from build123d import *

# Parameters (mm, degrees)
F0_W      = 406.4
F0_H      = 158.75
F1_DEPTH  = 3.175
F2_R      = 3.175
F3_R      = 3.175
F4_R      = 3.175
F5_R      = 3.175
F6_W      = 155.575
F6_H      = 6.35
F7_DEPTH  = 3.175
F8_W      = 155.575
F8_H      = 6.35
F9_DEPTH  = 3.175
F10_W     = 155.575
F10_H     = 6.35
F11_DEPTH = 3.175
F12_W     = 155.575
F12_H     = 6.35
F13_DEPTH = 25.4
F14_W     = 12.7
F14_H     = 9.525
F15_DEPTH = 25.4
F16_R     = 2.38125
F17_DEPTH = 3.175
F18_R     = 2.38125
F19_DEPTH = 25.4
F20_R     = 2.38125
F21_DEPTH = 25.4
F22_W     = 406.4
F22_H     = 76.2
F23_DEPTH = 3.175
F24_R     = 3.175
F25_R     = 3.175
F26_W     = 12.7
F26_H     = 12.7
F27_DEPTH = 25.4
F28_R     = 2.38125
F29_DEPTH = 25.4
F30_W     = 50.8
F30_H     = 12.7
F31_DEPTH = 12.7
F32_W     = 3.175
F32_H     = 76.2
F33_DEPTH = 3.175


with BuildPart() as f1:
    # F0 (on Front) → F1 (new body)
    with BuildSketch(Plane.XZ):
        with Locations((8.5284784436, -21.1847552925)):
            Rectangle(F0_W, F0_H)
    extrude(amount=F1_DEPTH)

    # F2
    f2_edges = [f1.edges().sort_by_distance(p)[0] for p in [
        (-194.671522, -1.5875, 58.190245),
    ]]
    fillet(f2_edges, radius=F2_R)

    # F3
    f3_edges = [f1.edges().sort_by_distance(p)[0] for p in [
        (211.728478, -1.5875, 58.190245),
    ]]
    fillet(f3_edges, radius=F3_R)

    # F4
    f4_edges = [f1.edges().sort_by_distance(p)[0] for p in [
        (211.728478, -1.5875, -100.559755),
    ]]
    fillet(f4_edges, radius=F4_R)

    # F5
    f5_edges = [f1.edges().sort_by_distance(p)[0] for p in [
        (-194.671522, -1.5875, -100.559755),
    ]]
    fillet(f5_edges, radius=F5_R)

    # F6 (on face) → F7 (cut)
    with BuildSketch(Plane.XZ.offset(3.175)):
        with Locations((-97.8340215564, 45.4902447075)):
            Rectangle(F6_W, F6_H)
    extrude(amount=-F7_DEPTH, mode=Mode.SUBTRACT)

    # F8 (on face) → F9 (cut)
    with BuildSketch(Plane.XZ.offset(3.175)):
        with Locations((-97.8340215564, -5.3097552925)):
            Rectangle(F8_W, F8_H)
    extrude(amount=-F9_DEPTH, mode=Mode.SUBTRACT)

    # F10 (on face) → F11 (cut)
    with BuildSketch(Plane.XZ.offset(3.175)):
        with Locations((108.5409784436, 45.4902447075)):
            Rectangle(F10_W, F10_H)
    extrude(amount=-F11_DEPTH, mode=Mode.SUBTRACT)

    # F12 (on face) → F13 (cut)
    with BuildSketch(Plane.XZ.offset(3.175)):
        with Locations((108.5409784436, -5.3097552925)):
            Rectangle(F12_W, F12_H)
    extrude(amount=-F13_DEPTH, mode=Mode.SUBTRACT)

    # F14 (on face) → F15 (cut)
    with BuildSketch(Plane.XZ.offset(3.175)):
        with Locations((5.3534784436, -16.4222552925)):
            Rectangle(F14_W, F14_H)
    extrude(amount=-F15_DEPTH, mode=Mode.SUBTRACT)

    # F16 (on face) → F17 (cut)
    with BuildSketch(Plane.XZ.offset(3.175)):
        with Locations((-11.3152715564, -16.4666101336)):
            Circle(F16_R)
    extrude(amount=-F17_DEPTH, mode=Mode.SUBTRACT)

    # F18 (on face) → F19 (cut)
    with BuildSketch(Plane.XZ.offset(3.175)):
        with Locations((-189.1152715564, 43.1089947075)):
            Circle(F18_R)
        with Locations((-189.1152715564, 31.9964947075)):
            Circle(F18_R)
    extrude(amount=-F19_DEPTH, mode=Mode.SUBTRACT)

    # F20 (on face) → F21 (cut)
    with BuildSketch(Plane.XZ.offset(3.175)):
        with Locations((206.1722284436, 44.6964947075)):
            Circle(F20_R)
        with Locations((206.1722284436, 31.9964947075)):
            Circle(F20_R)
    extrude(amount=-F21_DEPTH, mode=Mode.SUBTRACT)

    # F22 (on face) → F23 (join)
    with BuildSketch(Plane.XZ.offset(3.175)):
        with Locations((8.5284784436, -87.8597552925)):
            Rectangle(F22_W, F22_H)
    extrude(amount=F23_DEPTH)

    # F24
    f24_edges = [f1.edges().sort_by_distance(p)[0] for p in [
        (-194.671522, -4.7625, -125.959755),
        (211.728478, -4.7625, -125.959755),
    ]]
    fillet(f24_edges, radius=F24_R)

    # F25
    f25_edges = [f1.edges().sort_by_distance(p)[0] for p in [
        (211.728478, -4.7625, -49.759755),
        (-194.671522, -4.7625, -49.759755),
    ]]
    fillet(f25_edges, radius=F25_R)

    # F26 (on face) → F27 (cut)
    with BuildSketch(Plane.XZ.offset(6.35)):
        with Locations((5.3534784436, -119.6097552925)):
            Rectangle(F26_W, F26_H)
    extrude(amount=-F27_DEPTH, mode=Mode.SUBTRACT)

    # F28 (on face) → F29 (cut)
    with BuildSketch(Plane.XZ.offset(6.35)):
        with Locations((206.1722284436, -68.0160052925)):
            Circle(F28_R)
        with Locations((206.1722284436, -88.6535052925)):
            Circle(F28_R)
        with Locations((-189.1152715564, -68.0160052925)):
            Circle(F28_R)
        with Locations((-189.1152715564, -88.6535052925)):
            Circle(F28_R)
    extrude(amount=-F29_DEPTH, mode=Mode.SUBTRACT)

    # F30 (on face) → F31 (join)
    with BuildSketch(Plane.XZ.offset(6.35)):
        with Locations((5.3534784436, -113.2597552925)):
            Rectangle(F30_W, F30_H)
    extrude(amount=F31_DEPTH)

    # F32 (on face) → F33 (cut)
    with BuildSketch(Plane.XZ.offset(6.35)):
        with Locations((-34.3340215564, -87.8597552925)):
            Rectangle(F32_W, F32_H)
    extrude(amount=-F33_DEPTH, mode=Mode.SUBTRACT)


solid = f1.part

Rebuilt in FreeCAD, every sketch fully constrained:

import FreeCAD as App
import Part
import Sketcher

V = App.Vector
Q = App.Units.Quantity


def edges_at(feature, points):
    """Names of the edges that pass closest to the given points."""
    edges = feature.Shape.Edges
    near = lambda p: min(range(len(edges)), key=lambda i: edges[i].distToShape(Part.Vertex(*p))[0])
    return sorted({f"Edge{near(p) + 1}" for p in points})

doc = App.newDocument("Part")
body = doc.addObject("PartDesign::Body", "Body")

sketch1 = body.newObject("Sketcher::SketchObject", "Sketch")
sketch1.AttachmentSupport = (doc.getObject("XZ_Plane"), [""])
sketch1.MapMode = "FlatFace"
sketch1.addGeometry([
    Part.LineSegment(V(-195, 58, 0), V(-195, -101, 0)),
    Part.LineSegment(V(-195, -101, 0), V(212, -101, 0)),
    Part.LineSegment(V(212, -101, 0), V(212, 58, 0)),
    Part.LineSegment(V(212, 58, 0), V(-195, 58, 0)),
], False)
sketch1.addConstraint([
    Sketcher.Constraint("Coincident", 0, 2, 1, 1),
    Sketcher.Constraint("Coincident", 1, 2, 2, 1),
    Sketcher.Constraint("Coincident", 2, 2, 3, 1),
    Sketcher.Constraint("Coincident", 3, 2, 0, 1),
    Sketcher.Constraint("Vertical", 0),
    Sketcher.Constraint("Horizontal", 1),
    Sketcher.Constraint("Vertical", 2),
    Sketcher.Constraint("Horizontal", 3),
    Sketcher.Constraint("DistanceX", 1, 1, 1, 2, Q("16 in")),
    Sketcher.Constraint("DistanceY", 0, 2, 0, 1, Q("6.25 in")),
    Sketcher.Constraint("DistanceX", 0, 2, -1, 1, Q("194.671522 mm")),
    Sketcher.Constraint("DistanceY", 0, 2, -1, 1, Q("100.559755 mm")),
])
pad1 = body.newObject("PartDesign::Pad", "Pad")
pad1.Profile = sketch1
pad1.Length = Q("0.125 in")
doc.recompute()

fillet = body.newObject("PartDesign::Fillet", "Fillet")
fillet.Base = (pad1, edges_at(pad1, [(-194.672, -1.587, 58.19)]))
fillet.Radius = Q("0.125 in")
doc.recompute()

fillet2 = body.newObject("PartDesign::Fillet", "Fillet001")
fillet2.Base = (fillet, edges_at(fillet, [(211.728, -1.587, 58.19)]))
fillet2.Radius = Q("0.125 in")
doc.recompute()

fillet3 = body.newObject("PartDesign::Fillet", "Fillet002")
fillet3.Base = (fillet2, edges_at(fillet2, [(211.728, -1.587, -100.56)]))
fillet3.Radius = Q("0.125 in")
doc.recompute()

fillet4 = body.newObject("PartDesign::Fillet", "Fillet003")
fillet4.Base = (fillet3, edges_at(fillet3, [(-194.672, -1.587, -100.56)]))
fillet4.Radius = Q("0.125 in")

sketch2 = body.newObject("Sketcher::SketchObject", "Sketch001")
sketch2.AttachmentSupport = (doc.getObject("XZ_Plane"), [""])
sketch2.MapMode = "FlatFace"
sketch2.AttachmentOffset = App.Placement(V(0, 0, 0.125 * 25.4), App.Rotation())
sketch2.addGeometry([
    Part.LineSegment(V(-176, 49, 0), V(-176, 42, 0)),
    Part.LineSegment(V(-176, 42, 0), V(-20, 42, 0)),
    Part.LineSegment(V(-20, 42, 0), V(-20, 49, 0)),
    Part.LineSegment(V(-20, 49, 0), V(-176, 49, 0)),
], False)
sketch2.addConstraint([
    Sketcher.Constraint("Coincident", 0, 2, 1, 1),
    Sketcher.Constraint("Coincident", 1, 2, 2, 1),
    Sketcher.Constraint("Coincident", 2, 2, 3, 1),
    Sketcher.Constraint("Coincident", 3, 2, 0, 1),
    Sketcher.Constraint("Vertical", 0),
    Sketcher.Constraint("Horizontal", 1),
    Sketcher.Constraint("Vertical", 2),
    Sketcher.Constraint("Horizontal", 3),
    Sketcher.Constraint("DistanceY", 0, 2, 0, 1, Q("0.25 in")),
    Sketcher.Constraint("DistanceX", 1, 1, 1, 2, Q("6.125 in")),
    Sketcher.Constraint("DistanceX", 0, 2, -1, 1, Q("175.621522 mm")),
    Sketcher.Constraint("DistanceY", -1, 1, 0, 2, Q("42.315245 mm")),
])
pocket1 = body.newObject("PartDesign::Pocket", "Pocket")
pocket1.Profile = sketch2
pocket1.Length = Q("0.125 in")

sketch3 = body.newObject("Sketcher::SketchObject", "Sketch002")
sketch3.AttachmentSupport = (doc.getObject("XZ_Plane"), [""])
sketch3.MapMode = "FlatFace"
sketch3.AttachmentOffset = App.Placement(V(0, 0, 0.125 * 25.4), App.Rotation())
sketch3.addGeometry([
    Part.LineSegment(V(-176, -2, 0), V(-176, -8, 0)),
    Part.LineSegment(V(-176, -8, 0), V(-20, -8, 0)),
    Part.LineSegment(V(-20, -8, 0), V(-20, -2, 0)),
    Part.LineSegment(V(-20, -2, 0), V(-176, -2, 0)),
], False)
sketch3.addConstraint([
    Sketcher.Constraint("Coincident", 0, 2, 1, 1),
    Sketcher.Constraint("Coincident", 1, 2, 2, 1),
    Sketcher.Constraint("Coincident", 2, 2, 3, 1),
    Sketcher.Constraint("Coincident", 3, 2, 0, 1),
    Sketcher.Constraint("Vertical", 0),
    Sketcher.Constraint("Horizontal", 1),
    Sketcher.Constraint("Vertical", 2),
    Sketcher.Constraint("Horizontal", 3),
    Sketcher.Constraint("DistanceY", 0, 2, 0, 1, Q("0.25 in")),
    Sketcher.Constraint("DistanceX", 1, 1, 1, 2, Q("6.125 in")),
    Sketcher.Constraint("DistanceX", 0, 2, -1, 1, Q("175.621522 mm")),
    Sketcher.Constraint("DistanceY", 0, 2, -1, 1, Q("8.484755 mm")),
])
pocket2 = body.newObject("PartDesign::Pocket", "Pocket001")
pocket2.Profile = sketch3
pocket2.Length = Q("0.125 in")

sketch4 = body.newObject("Sketcher::SketchObject", "Sketch003")
sketch4.AttachmentSupport = (doc.getObject("XZ_Plane"), [""])
sketch4.MapMode = "FlatFace"
sketch4.AttachmentOffset = App.Placement(V(0, 0, 0.125 * 25.4), App.Rotation())
sketch4.addGeometry([
    Part.LineSegment(V(31, 49, 0), V(31, 42, 0)),
    Part.LineSegment(V(31, 42, 0), V(186, 42, 0)),
    Part.LineSegment(V(186, 42, 0), V(186, 49, 0)),
    Part.LineSegment(V(186, 49, 0), V(31, 49, 0)),
], False)
sketch4.addConstraint([
    Sketcher.Constraint("Coincident", 0, 2, 1, 1),
    Sketcher.Constraint("Coincident", 1, 2, 2, 1),
    Sketcher.Constraint("Coincident", 2, 2, 3, 1),
    Sketcher.Constraint("Coincident", 3, 2, 0, 1),
    Sketcher.Constraint("Vertical", 0),
    Sketcher.Constraint("Horizontal", 1),
    Sketcher.Constraint("Vertical", 2),
    Sketcher.Constraint("Horizontal", 3),
    Sketcher.Constraint("DistanceY", 0, 2, 0, 1, Q("0.25 in")),
    Sketcher.Constraint("DistanceX", 1, 1, 1, 2, Q("6.125 in")),
    Sketcher.Constraint("DistanceX", -1, 1, 0, 2, Q("30.753478 mm")),
    Sketcher.Constraint("DistanceY", -1, 1, 0, 2, Q("42.315245 mm")),
])
pocket3 = body.newObject("PartDesign::Pocket", "Pocket002")
pocket3.Profile = sketch4
pocket3.Length = Q("0.125 in")

sketch5 = body.newObject("Sketcher::SketchObject", "Sketch004")
sketch5.AttachmentSupport = (doc.getObject("XZ_Plane"), [""])
sketch5.MapMode = "FlatFace"
sketch5.AttachmentOffset = App.Placement(V(0, 0, 0.125 * 25.4), App.Rotation())
sketch5.addGeometry([
    Part.LineSegment(V(31, -2, 0), V(31, -8, 0)),
    Part.LineSegment(V(31, -8, 0), V(186, -8, 0)),
    Part.LineSegment(V(186, -8, 0), V(186, -2, 0)),
    Part.LineSegment(V(186, -2, 0), V(31, -2, 0)),
], False)
sketch5.addConstraint([
    Sketcher.Constraint("Coincident", 0, 2, 1, 1),
    Sketcher.Constraint("Coincident", 1, 2, 2, 1),
    Sketcher.Constraint("Coincident", 2, 2, 3, 1),
    Sketcher.Constraint("Coincident", 3, 2, 0, 1),
    Sketcher.Constraint("Vertical", 0),
    Sketcher.Constraint("Horizontal", 1),
    Sketcher.Constraint("Vertical", 2),
    Sketcher.Constraint("Horizontal", 3),
    Sketcher.Constraint("DistanceY", 0, 2, 0, 1, Q("0.25 in")),
    Sketcher.Constraint("DistanceX", 1, 1, 1, 2, Q("6.125 in")),
    Sketcher.Constraint("DistanceX", -1, 1, 0, 2, Q("30.753478 mm")),
    Sketcher.Constraint("DistanceY", 0, 2, -1, 1, Q("8.484755 mm")),
])
pocket4 = body.newObject("PartDesign::Pocket", "Pocket003")
pocket4.Profile = sketch5
pocket4.Length = Q("1 in")

sketch6 = body.newObject("Sketcher::SketchObject", "Sketch005")
sketch6.AttachmentSupport = (doc.getObject("XZ_Plane"), [""])
sketch6.MapMode = "FlatFace"
sketch6.AttachmentOffset = App.Placement(V(0, 0, 0.125 * 25.4), App.Rotation())
sketch6.addGeometry([
    Part.LineSegment(V(-1, -12, 0), V(-1, -21, 0)),
    Part.LineSegment(V(-1, -21, 0), V(12, -21, 0)),
    Part.LineSegment(V(12, -21, 0), V(12, -12, 0)),
    Part.LineSegment(V(12, -12, 0), V(-1, -12, 0)),
], False)
sketch6.addConstraint([
    Sketcher.Constraint("Coincident", 0, 2, 1, 1),
    Sketcher.Constraint("Coincident", 1, 2, 2, 1),
    Sketcher.Constraint("Coincident", 2, 2, 3, 1),
    Sketcher.Constraint("Coincident", 3, 2, 0, 1),
    Sketcher.Constraint("Vertical", 0),
    Sketcher.Constraint("Horizontal", 1),
    Sketcher.Constraint("Vertical", 2),
    Sketcher.Constraint("Horizontal", 3),
    Sketcher.Constraint("DistanceX", 1, 1, 1, 2, Q("0.5 in")),
    Sketcher.Constraint("DistanceY", 0, 2, 0, 1, Q("0.375 in")),
    Sketcher.Constraint("DistanceX", 0, 2, -1, 1, Q("0.996522 mm")),
    Sketcher.Constraint("DistanceY", 0, 2, -1, 1, Q("21.184755 mm")),
])
pocket5 = body.newObject("PartDesign::Pocket", "Pocket004")
pocket5.Profile = sketch6
pocket5.Length = Q("1 in")

sketch7 = body.newObject("Sketcher::SketchObject", "Sketch006")
sketch7.AttachmentSupport = (doc.getObject("XZ_Plane"), [""])
sketch7.MapMode = "FlatFace"
sketch7.AttachmentOffset = App.Placement(V(0, 0, 0.125 * 25.4), App.Rotation())
sketch7.addGeometry(Part.Circle(V(-11.3, -16.5, 0), V(0, 0, 1), 2.4), False)
sketch7.addConstraint([
    Sketcher.Constraint("Diameter", 0, Q("0.1875 in")),
    Sketcher.Constraint("DistanceX", 0, 3, -1, 1, Q("11.315272 mm")),
    Sketcher.Constraint("DistanceY", 0, 3, -1, 1, Q("16.46661 mm")),
])
pocket6 = body.newObject("PartDesign::Pocket", "Pocket005")
pocket6.Profile = sketch7
pocket6.Length = Q("0.125 in")

sketch8 = body.newObject("Sketcher::SketchObject", "Sketch007")
sketch8.AttachmentSupport = (doc.getObject("XZ_Plane"), [""])
sketch8.MapMode = "FlatFace"
sketch8.AttachmentOffset = App.Placement(V(0, 0, 0.125 * 25.4), App.Rotation())
sketch8.addGeometry([
    Part.Circle(V(-189.1, 43.1, 0), V(0, 0, 1), 2.4),
    Part.Circle(V(-189.1, 32, 0), V(0, 0, 1), 2.4),
], False)
sketch8.addConstraint([
    Sketcher.Constraint("Equal", 0, 1),
    Sketcher.Constraint("Vertical", 0, 3, 1, 3),
    Sketcher.Constraint("Diameter", 0, Q("0.1875 in")),
    Sketcher.Constraint("DistanceY", 1, 3, 0, 3, Q("0.4375 in")),
    Sketcher.Constraint("DistanceX", 0, 3, -1, 1, Q("189.115272 mm")),
    Sketcher.Constraint("DistanceY", -1, 1, 0, 3, Q("43.108995 mm")),
])
pocket7 = body.newObject("PartDesign::Pocket", "Pocket006")
pocket7.Profile = sketch8
pocket7.Length = Q("1 in")

sketch9 = body.newObject("Sketcher::SketchObject", "Sketch008")
sketch9.AttachmentSupport = (doc.getObject("XZ_Plane"), [""])
sketch9.MapMode = "FlatFace"
sketch9.AttachmentOffset = App.Placement(V(0, 0, 0.125 * 25.4), App.Rotation())
sketch9.addGeometry([
    Part.Circle(V(206.2, 44.7, 0), V(0, 0, 1), 2.4),
    Part.Circle(V(206.2, 32, 0), V(0, 0, 1), 2.4),
], False)
sketch9.addConstraint([
    Sketcher.Constraint("Equal", 0, 1),
    Sketcher.Constraint("Vertical", 0, 3, 1, 3),
    Sketcher.Constraint("Diameter", 0, Q("0.1875 in")),
    Sketcher.Constraint("DistanceY", 1, 3, 0, 3, Q("0.5 in")),
    Sketcher.Constraint("DistanceX", -1, 1, 0, 3, Q("206.172228 mm")),
    Sketcher.Constraint("DistanceY", -1, 1, 0, 3, Q("44.696495 mm")),
])
pocket8 = body.newObject("PartDesign::Pocket", "Pocket007")
pocket8.Profile = sketch9
pocket8.Length = Q("1 in")

sketch10 = body.newObject("Sketcher::SketchObject", "Sketch009")
sketch10.AttachmentSupport = (doc.getObject("XZ_Plane"), [""])
sketch10.MapMode = "FlatFace"
sketch10.AttachmentOffset = App.Placement(V(0, 0, 0.125 * 25.4), App.Rotation())
sketch10.addGeometry([
    Part.LineSegment(V(-195, -50, 0), V(-195, -126, 0)),
    Part.LineSegment(V(-195, -126, 0), V(212, -126, 0)),
    Part.LineSegment(V(212, -126, 0), V(212, -50, 0)),
    Part.LineSegment(V(212, -50, 0), V(-195, -50, 0)),
], False)
sketch10.addConstraint([
    Sketcher.Constraint("Coincident", 0, 2, 1, 1),
    Sketcher.Constraint("Coincident", 1, 2, 2, 1),
    Sketcher.Constraint("Coincident", 2, 2, 3, 1),
    Sketcher.Constraint("Coincident", 3, 2, 0, 1),
    Sketcher.Constraint("Vertical", 0),
    Sketcher.Constraint("Horizontal", 1),
    Sketcher.Constraint("Vertical", 2),
    Sketcher.Constraint("Horizontal", 3),
    Sketcher.Constraint("DistanceX", 1, 1, 1, 2, Q("16 in")),
    Sketcher.Constraint("DistanceY", 0, 2, 0, 1, Q("3 in")),
    Sketcher.Constraint("DistanceX", 0, 2, -1, 1, Q("194.671522 mm")),
    Sketcher.Constraint("DistanceY", 0, 2, -1, 1, Q("125.959755 mm")),
])
pad2 = body.newObject("PartDesign::Pad", "Pad001")
pad2.Profile = sketch10
pad2.Length = Q("0.125 in")
doc.recompute()

fillet5 = body.newObject("PartDesign::Fillet", "Fillet004")
fillet5.Base = (pad2, edges_at(pad2, [(-194.672, -4.763, -125.96), (211.728, -4.763, -125.96)]))
fillet5.Radius = Q("0.125 in")
doc.recompute()

fillet6 = body.newObject("PartDesign::Fillet", "Fillet005")
fillet6.Base = (fillet5, edges_at(fillet5, [(211.728, -4.763, -49.76), (-194.672, -4.763, -49.76)]))
fillet6.Radius = Q("0.125 in")

sketch11 = body.newObject("Sketcher::SketchObject", "Sketch010")
sketch11.AttachmentSupport = (doc.getObject("XZ_Plane"), [""])
sketch11.MapMode = "FlatFace"
sketch11.AttachmentOffset = App.Placement(V(0, 0, 0.25 * 25.4), App.Rotation())
sketch11.addGeometry([
    Part.LineSegment(V(-1, -113, 0), V(-1, -126, 0)),
    Part.LineSegment(V(-1, -126, 0), V(12, -126, 0)),
    Part.LineSegment(V(12, -126, 0), V(12, -113, 0)),
    Part.LineSegment(V(12, -113, 0), V(-1, -113, 0)),
], False)
sketch11.addConstraint([
    Sketcher.Constraint("Coincident", 0, 2, 1, 1),
    Sketcher.Constraint("Coincident", 1, 2, 2, 1),
    Sketcher.Constraint("Coincident", 2, 2, 3, 1),
    Sketcher.Constraint("Coincident", 3, 2, 0, 1),
    Sketcher.Constraint("Vertical", 0),
    Sketcher.Constraint("Horizontal", 1),
    Sketcher.Constraint("Vertical", 2),
    Sketcher.Constraint("Horizontal", 3),
    Sketcher.Constraint("Equal", 3, 0),
    Sketcher.Constraint("DistanceX", 1, 1, 1, 2, Q("0.5 in")),
    Sketcher.Constraint("DistanceX", 0, 2, -1, 1, Q("0.996522 mm")),
    Sketcher.Constraint("DistanceY", 0, 2, -1, 1, Q("125.959755 mm")),
])
pocket9 = body.newObject("PartDesign::Pocket", "Pocket008")
pocket9.Profile = sketch11
pocket9.Length = Q("1 in")

sketch12 = body.newObject("Sketcher::SketchObject", "Sketch011")
sketch12.AttachmentSupport = (doc.getObject("XZ_Plane"), [""])
sketch12.MapMode = "FlatFace"
sketch12.AttachmentOffset = App.Placement(V(0, 0, 0.25 * 25.4), App.Rotation())
sketch12.addGeometry([
    Part.Circle(V(206.2, -68, 0), V(0, 0, 1), 2.4),
    Part.Circle(V(206.2, -88.7, 0), V(0, 0, 1), 2.4),
    Part.Circle(V(-189.1, -68, 0), V(0, 0, 1), 2.4),
    Part.Circle(V(-189.1, -88.7, 0), V(0, 0, 1), 2.4),
], False)
sketch12.addConstraint([
    Sketcher.Constraint("Equal", 0, 1),
    Sketcher.Constraint("Equal", 1, 2),
    Sketcher.Constraint("Equal", 2, 3),
    Sketcher.Constraint("Horizontal", 0, 3, 2, 3),
    Sketcher.Constraint("Horizontal", 1, 3, 3, 3),
    Sketcher.Constraint("Vertical", 0, 3, 1, 3),
    Sketcher.Constraint("Vertical", 2, 3, 3, 3),
    Sketcher.Constraint("Diameter", 0, Q("0.1875 in")),
    Sketcher.Constraint("DistanceY", 1, 3, 0, 3, Q("0.8125 in")),
    Sketcher.Constraint("DistanceX", 2, 3, 0, 3, Q("15.5625 in")),
    Sketcher.Constraint("DistanceX", -1, 1, 0, 3, Q("206.172228 mm")),
    Sketcher.Constraint("DistanceY", 0, 3, -1, 1, Q("68.016005 mm")),
])
pocket10 = body.newObject("PartDesign::Pocket", "Pocket009")
pocket10.Profile = sketch12
pocket10.Length = Q("1 in")

sketch13 = body.newObject("Sketcher::SketchObject", "Sketch012")
sketch13.AttachmentSupport = (doc.getObject("XZ_Plane"), [""])
sketch13.MapMode = "FlatFace"
sketch13.AttachmentOffset = App.Placement(V(0, 0, 0.25 * 25.4), App.Rotation())
sketch13.addGeometry([
    Part.LineSegment(V(-20, -107, 0), V(-20, -120, 0)),
    Part.LineSegment(V(-20, -120, 0), V(31, -120, 0)),
    Part.LineSegment(V(31, -120, 0), V(31, -107, 0)),
    Part.LineSegment(V(31, -107, 0), V(-20, -107, 0)),
], False)
sketch13.addConstraint([
    Sketcher.Constraint("Coincident", 0, 2, 1, 1),
    Sketcher.Constraint("Coincident", 1, 2, 2, 1),
    Sketcher.Constraint("Coincident", 2, 2, 3, 1),
    Sketcher.Constraint("Coincident", 3, 2, 0, 1),
    Sketcher.Constraint("Vertical", 0),
    Sketcher.Constraint("Horizontal", 1),
    Sketcher.Constraint("Vertical", 2),
    Sketcher.Constraint("Horizontal", 3),
    Sketcher.Constraint("DistanceX", 1, 1, 1, 2, Q("2 in")),
    Sketcher.Constraint("DistanceY", 0, 2, 0, 1, Q("0.5 in")),
    Sketcher.Constraint("DistanceX", 0, 2, -1, 1, Q("20.046522 mm")),
    Sketcher.Constraint("DistanceY", 0, 2, -1, 1, Q("119.609755 mm")),
])
pad3 = body.newObject("PartDesign::Pad", "Pad002")
pad3.Profile = sketch13
pad3.Length = Q("0.5 in")

sketch14 = body.newObject("Sketcher::SketchObject", "Sketch013")
sketch14.AttachmentSupport = (doc.getObject("XZ_Plane"), [""])
sketch14.MapMode = "FlatFace"
sketch14.AttachmentOffset = App.Placement(V(0, 0, 0.25 * 25.4), App.Rotation())
sketch14.addGeometry([
    Part.LineSegment(V(-35.9, -49.8, 0), V(-35.9, -126, 0)),
    Part.LineSegment(V(-35.9, -126, 0), V(-32.7, -126, 0)),
    Part.LineSegment(V(-32.7, -126, 0), V(-32.7, -49.8, 0)),
    Part.LineSegment(V(-32.7, -49.8, 0), V(-35.9, -49.8, 0)),
], False)
sketch14.addConstraint([
    Sketcher.Constraint("Coincident", 0, 2, 1, 1),
    Sketcher.Constraint("Coincident", 1, 2, 2, 1),
    Sketcher.Constraint("Coincident", 2, 2, 3, 1),
    Sketcher.Constraint("Coincident", 3, 2, 0, 1),
    Sketcher.Constraint("Vertical", 0),
    Sketcher.Constraint("Horizontal", 1),
    Sketcher.Constraint("Vertical", 2),
    Sketcher.Constraint("Horizontal", 3),
    Sketcher.Constraint("DistanceY", 0, 2, 0, 1, Q("3 in")),
    Sketcher.Constraint("DistanceX", 1, 1, 1, 2, Q("0.125 in")),
    Sketcher.Constraint("DistanceX", 0, 2, -1, 1, Q("35.921522 mm")),
    Sketcher.Constraint("DistanceY", 0, 2, -1, 1, Q("125.959755 mm")),
])
pocket11 = body.newObject("PartDesign::Pocket", "Pocket010")
pocket11.Profile = sketch14
pocket11.Length = Q("0.125 in")

doc.recompute()
